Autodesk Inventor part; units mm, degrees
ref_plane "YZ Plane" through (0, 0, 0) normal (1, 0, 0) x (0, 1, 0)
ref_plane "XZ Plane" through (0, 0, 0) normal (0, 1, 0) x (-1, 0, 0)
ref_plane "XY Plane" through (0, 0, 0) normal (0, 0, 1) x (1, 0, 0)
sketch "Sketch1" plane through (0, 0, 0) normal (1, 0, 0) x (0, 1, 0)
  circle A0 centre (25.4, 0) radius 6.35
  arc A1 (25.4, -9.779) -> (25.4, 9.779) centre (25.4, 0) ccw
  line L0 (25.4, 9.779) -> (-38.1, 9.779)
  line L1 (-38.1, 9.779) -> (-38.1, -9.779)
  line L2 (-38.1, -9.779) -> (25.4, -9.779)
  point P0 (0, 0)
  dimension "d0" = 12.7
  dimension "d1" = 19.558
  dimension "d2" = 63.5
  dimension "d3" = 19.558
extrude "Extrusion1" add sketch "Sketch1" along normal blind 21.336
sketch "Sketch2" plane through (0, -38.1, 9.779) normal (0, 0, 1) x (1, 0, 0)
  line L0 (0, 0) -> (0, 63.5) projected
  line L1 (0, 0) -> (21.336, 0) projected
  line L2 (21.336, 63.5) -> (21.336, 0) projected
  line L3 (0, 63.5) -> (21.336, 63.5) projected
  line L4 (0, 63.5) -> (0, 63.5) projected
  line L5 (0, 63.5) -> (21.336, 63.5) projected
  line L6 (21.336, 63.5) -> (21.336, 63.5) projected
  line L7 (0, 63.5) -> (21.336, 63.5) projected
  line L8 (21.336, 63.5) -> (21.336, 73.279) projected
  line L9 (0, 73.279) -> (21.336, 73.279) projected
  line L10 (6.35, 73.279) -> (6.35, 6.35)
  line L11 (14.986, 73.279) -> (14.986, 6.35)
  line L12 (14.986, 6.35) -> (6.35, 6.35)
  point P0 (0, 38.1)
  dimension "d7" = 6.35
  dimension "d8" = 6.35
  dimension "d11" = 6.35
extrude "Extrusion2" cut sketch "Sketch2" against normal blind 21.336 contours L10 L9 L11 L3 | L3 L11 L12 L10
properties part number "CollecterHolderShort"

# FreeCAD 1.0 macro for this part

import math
import FreeCAD as App
import Part
import Sketcher
from FreeCAD import Vector
Q = App.Units.Quantity

doc = App.newDocument("Part")
params = doc.addObject("Spreadsheet::Sheet", "Params")
for row, (alias, value) in enumerate([
    ("sketch1_diameter", "0.5 in"),
    ("sketch1_width", "2.5 in"),
    ("sketch1_radius", "0.385 in"),
    ("pad1_length", "0.84 in"),
    ("sketch2_width", "0.34 in"),
    ("sketch2_height", "2.635 in"),
    ("pocket1_length", "0.84 in"),
], start=1):
    params.set(f"A{row}", alias)
    params.set(f"B{row}", "=" + value)
    params.setAlias(f"B{row}", alias)

body = doc.addObject("PartDesign::Body", "Body")

# Sketch on YZ plane
sketch1 = body.newObject("Sketcher::SketchObject", "Sketch")
sketch1.AttachmentSupport = (doc.getObject("YZ_Plane"), [""])
sketch1.MapMode = "FlatFace"
sketch1.addGeometry([
    Part.LineSegment(Vector(-38, -10, 0), Vector(25, -10, 0)),  # 0
    Part.ArcOfCircle(Part.Circle(Vector(25, 0, 0), Vector(0, 0, 1), 10), math.radians(-90), math.radians(90)),  # 1
    Part.LineSegment(Vector(25, 10, 0), Vector(-38, 10, 0)),  # 2
    Part.LineSegment(Vector(-38, 10, 0), Vector(-38, -10, 0)),  # 3
    Part.Circle(Vector(25, 0, 0), Vector(0, 0, 1), 6),  # 4
], False)
sketch1.addConstraint([
    Sketcher.Constraint("Tangent", 0, 2, 1, 1),
    Sketcher.Constraint("Tangent", 1, 2, 2, 1),
    Sketcher.Constraint("Coincident", 2, 2, 3, 1),
    Sketcher.Constraint("Coincident", 3, 2, 0, 1),
    Sketcher.Constraint("Horizontal", 0),
    Sketcher.Constraint("Horizontal", 2),
    Sketcher.Constraint("Vertical", 3),
    Sketcher.Constraint("Coincident", 4, 3, 1, 3),
    Sketcher.Constraint("PointOnObject", 1, 3, -1),
    Sketcher.Constraint("Diameter", 4, Q("0.5 in")),
    Sketcher.Constraint("DistanceX", 0, 1, 0, 2, Q("2.5 in")),
    Sketcher.Constraint("Radius", 1, Q("0.385 in")),
    Sketcher.Constraint("DistanceX", -1, 1, 1, 3, Q("1 in")),
])
sketch1.setExpression("Constraints[9]", "Params.sketch1_diameter")
sketch1.setExpression("Constraints[10]", "Params.sketch1_width")
sketch1.setExpression("Constraints[11]", "Params.sketch1_radius")
pad1 = body.newObject("PartDesign::Pad", "Pad")
pad1.Profile = sketch1
pad1.setExpression("Length", "Params.pad1_length")

# Sketch on XY plane
sketch2 = body.newObject("Sketcher::SketchObject", "Sketch001")
sketch2.AttachmentSupport = (doc.getObject("XY_Plane"), [""])
sketch2.MapMode = "FlatFace"
sketch2.AttachmentOffset = App.Placement(Vector(0, 0, 0.385 * 25.4), App.Rotation())
sketch2.addGeometry([
    Part.LineSegment(Vector(6, 35, 0), Vector(6, -32, 0)),
    Part.LineSegment(Vector(6, -32, 0), Vector(15, -32, 0)),
    Part.LineSegment(Vector(15, -32, 0), Vector(15, 35, 0)),
    Part.LineSegment(Vector(15, 35, 0), Vector(6, 35, 0)),
], False)
sketch2.addConstraint([
    Sketcher.Constraint("Coincident", 0, 2, 1, 1),
    Sketcher.Constraint("Coincident", 1, 2, 2, 1),
    Sketcher.Constraint("Coincident", 2, 2, 3, 1),
    Sketcher.Constraint("Coincident", 3, 2, 0, 1),
    Sketcher.Constraint("Vertical", 0),
    Sketcher.Constraint("Horizontal", 1),
    Sketcher.Constraint("Vertical", 2),
    Sketcher.Constraint("Horizontal", 3),
    Sketcher.Constraint("DistanceX", -1, 1, 0, 2, Q("0.25 in")),
    Sketcher.Constraint("DistanceX", 1, 1, 1, 2, Q("0.34 in")),
    Sketcher.Constraint("DistanceY", 0, 2, 0, 1, Q("2.635 in")),
    Sketcher.Constraint("DistanceY", 0, 2, -1, 1, Q("1.25 in")),
])
sketch2.setExpression("Constraints[9]", "Params.sketch2_width")
sketch2.setExpression("Constraints[10]", "Params.sketch2_height")
pocket1 = body.newObject("PartDesign::Pocket", "Pocket")
pocket1.Profile = sketch2
pocket1.setExpression("Length", "Params.pocket1_length")

doc.recompute()
